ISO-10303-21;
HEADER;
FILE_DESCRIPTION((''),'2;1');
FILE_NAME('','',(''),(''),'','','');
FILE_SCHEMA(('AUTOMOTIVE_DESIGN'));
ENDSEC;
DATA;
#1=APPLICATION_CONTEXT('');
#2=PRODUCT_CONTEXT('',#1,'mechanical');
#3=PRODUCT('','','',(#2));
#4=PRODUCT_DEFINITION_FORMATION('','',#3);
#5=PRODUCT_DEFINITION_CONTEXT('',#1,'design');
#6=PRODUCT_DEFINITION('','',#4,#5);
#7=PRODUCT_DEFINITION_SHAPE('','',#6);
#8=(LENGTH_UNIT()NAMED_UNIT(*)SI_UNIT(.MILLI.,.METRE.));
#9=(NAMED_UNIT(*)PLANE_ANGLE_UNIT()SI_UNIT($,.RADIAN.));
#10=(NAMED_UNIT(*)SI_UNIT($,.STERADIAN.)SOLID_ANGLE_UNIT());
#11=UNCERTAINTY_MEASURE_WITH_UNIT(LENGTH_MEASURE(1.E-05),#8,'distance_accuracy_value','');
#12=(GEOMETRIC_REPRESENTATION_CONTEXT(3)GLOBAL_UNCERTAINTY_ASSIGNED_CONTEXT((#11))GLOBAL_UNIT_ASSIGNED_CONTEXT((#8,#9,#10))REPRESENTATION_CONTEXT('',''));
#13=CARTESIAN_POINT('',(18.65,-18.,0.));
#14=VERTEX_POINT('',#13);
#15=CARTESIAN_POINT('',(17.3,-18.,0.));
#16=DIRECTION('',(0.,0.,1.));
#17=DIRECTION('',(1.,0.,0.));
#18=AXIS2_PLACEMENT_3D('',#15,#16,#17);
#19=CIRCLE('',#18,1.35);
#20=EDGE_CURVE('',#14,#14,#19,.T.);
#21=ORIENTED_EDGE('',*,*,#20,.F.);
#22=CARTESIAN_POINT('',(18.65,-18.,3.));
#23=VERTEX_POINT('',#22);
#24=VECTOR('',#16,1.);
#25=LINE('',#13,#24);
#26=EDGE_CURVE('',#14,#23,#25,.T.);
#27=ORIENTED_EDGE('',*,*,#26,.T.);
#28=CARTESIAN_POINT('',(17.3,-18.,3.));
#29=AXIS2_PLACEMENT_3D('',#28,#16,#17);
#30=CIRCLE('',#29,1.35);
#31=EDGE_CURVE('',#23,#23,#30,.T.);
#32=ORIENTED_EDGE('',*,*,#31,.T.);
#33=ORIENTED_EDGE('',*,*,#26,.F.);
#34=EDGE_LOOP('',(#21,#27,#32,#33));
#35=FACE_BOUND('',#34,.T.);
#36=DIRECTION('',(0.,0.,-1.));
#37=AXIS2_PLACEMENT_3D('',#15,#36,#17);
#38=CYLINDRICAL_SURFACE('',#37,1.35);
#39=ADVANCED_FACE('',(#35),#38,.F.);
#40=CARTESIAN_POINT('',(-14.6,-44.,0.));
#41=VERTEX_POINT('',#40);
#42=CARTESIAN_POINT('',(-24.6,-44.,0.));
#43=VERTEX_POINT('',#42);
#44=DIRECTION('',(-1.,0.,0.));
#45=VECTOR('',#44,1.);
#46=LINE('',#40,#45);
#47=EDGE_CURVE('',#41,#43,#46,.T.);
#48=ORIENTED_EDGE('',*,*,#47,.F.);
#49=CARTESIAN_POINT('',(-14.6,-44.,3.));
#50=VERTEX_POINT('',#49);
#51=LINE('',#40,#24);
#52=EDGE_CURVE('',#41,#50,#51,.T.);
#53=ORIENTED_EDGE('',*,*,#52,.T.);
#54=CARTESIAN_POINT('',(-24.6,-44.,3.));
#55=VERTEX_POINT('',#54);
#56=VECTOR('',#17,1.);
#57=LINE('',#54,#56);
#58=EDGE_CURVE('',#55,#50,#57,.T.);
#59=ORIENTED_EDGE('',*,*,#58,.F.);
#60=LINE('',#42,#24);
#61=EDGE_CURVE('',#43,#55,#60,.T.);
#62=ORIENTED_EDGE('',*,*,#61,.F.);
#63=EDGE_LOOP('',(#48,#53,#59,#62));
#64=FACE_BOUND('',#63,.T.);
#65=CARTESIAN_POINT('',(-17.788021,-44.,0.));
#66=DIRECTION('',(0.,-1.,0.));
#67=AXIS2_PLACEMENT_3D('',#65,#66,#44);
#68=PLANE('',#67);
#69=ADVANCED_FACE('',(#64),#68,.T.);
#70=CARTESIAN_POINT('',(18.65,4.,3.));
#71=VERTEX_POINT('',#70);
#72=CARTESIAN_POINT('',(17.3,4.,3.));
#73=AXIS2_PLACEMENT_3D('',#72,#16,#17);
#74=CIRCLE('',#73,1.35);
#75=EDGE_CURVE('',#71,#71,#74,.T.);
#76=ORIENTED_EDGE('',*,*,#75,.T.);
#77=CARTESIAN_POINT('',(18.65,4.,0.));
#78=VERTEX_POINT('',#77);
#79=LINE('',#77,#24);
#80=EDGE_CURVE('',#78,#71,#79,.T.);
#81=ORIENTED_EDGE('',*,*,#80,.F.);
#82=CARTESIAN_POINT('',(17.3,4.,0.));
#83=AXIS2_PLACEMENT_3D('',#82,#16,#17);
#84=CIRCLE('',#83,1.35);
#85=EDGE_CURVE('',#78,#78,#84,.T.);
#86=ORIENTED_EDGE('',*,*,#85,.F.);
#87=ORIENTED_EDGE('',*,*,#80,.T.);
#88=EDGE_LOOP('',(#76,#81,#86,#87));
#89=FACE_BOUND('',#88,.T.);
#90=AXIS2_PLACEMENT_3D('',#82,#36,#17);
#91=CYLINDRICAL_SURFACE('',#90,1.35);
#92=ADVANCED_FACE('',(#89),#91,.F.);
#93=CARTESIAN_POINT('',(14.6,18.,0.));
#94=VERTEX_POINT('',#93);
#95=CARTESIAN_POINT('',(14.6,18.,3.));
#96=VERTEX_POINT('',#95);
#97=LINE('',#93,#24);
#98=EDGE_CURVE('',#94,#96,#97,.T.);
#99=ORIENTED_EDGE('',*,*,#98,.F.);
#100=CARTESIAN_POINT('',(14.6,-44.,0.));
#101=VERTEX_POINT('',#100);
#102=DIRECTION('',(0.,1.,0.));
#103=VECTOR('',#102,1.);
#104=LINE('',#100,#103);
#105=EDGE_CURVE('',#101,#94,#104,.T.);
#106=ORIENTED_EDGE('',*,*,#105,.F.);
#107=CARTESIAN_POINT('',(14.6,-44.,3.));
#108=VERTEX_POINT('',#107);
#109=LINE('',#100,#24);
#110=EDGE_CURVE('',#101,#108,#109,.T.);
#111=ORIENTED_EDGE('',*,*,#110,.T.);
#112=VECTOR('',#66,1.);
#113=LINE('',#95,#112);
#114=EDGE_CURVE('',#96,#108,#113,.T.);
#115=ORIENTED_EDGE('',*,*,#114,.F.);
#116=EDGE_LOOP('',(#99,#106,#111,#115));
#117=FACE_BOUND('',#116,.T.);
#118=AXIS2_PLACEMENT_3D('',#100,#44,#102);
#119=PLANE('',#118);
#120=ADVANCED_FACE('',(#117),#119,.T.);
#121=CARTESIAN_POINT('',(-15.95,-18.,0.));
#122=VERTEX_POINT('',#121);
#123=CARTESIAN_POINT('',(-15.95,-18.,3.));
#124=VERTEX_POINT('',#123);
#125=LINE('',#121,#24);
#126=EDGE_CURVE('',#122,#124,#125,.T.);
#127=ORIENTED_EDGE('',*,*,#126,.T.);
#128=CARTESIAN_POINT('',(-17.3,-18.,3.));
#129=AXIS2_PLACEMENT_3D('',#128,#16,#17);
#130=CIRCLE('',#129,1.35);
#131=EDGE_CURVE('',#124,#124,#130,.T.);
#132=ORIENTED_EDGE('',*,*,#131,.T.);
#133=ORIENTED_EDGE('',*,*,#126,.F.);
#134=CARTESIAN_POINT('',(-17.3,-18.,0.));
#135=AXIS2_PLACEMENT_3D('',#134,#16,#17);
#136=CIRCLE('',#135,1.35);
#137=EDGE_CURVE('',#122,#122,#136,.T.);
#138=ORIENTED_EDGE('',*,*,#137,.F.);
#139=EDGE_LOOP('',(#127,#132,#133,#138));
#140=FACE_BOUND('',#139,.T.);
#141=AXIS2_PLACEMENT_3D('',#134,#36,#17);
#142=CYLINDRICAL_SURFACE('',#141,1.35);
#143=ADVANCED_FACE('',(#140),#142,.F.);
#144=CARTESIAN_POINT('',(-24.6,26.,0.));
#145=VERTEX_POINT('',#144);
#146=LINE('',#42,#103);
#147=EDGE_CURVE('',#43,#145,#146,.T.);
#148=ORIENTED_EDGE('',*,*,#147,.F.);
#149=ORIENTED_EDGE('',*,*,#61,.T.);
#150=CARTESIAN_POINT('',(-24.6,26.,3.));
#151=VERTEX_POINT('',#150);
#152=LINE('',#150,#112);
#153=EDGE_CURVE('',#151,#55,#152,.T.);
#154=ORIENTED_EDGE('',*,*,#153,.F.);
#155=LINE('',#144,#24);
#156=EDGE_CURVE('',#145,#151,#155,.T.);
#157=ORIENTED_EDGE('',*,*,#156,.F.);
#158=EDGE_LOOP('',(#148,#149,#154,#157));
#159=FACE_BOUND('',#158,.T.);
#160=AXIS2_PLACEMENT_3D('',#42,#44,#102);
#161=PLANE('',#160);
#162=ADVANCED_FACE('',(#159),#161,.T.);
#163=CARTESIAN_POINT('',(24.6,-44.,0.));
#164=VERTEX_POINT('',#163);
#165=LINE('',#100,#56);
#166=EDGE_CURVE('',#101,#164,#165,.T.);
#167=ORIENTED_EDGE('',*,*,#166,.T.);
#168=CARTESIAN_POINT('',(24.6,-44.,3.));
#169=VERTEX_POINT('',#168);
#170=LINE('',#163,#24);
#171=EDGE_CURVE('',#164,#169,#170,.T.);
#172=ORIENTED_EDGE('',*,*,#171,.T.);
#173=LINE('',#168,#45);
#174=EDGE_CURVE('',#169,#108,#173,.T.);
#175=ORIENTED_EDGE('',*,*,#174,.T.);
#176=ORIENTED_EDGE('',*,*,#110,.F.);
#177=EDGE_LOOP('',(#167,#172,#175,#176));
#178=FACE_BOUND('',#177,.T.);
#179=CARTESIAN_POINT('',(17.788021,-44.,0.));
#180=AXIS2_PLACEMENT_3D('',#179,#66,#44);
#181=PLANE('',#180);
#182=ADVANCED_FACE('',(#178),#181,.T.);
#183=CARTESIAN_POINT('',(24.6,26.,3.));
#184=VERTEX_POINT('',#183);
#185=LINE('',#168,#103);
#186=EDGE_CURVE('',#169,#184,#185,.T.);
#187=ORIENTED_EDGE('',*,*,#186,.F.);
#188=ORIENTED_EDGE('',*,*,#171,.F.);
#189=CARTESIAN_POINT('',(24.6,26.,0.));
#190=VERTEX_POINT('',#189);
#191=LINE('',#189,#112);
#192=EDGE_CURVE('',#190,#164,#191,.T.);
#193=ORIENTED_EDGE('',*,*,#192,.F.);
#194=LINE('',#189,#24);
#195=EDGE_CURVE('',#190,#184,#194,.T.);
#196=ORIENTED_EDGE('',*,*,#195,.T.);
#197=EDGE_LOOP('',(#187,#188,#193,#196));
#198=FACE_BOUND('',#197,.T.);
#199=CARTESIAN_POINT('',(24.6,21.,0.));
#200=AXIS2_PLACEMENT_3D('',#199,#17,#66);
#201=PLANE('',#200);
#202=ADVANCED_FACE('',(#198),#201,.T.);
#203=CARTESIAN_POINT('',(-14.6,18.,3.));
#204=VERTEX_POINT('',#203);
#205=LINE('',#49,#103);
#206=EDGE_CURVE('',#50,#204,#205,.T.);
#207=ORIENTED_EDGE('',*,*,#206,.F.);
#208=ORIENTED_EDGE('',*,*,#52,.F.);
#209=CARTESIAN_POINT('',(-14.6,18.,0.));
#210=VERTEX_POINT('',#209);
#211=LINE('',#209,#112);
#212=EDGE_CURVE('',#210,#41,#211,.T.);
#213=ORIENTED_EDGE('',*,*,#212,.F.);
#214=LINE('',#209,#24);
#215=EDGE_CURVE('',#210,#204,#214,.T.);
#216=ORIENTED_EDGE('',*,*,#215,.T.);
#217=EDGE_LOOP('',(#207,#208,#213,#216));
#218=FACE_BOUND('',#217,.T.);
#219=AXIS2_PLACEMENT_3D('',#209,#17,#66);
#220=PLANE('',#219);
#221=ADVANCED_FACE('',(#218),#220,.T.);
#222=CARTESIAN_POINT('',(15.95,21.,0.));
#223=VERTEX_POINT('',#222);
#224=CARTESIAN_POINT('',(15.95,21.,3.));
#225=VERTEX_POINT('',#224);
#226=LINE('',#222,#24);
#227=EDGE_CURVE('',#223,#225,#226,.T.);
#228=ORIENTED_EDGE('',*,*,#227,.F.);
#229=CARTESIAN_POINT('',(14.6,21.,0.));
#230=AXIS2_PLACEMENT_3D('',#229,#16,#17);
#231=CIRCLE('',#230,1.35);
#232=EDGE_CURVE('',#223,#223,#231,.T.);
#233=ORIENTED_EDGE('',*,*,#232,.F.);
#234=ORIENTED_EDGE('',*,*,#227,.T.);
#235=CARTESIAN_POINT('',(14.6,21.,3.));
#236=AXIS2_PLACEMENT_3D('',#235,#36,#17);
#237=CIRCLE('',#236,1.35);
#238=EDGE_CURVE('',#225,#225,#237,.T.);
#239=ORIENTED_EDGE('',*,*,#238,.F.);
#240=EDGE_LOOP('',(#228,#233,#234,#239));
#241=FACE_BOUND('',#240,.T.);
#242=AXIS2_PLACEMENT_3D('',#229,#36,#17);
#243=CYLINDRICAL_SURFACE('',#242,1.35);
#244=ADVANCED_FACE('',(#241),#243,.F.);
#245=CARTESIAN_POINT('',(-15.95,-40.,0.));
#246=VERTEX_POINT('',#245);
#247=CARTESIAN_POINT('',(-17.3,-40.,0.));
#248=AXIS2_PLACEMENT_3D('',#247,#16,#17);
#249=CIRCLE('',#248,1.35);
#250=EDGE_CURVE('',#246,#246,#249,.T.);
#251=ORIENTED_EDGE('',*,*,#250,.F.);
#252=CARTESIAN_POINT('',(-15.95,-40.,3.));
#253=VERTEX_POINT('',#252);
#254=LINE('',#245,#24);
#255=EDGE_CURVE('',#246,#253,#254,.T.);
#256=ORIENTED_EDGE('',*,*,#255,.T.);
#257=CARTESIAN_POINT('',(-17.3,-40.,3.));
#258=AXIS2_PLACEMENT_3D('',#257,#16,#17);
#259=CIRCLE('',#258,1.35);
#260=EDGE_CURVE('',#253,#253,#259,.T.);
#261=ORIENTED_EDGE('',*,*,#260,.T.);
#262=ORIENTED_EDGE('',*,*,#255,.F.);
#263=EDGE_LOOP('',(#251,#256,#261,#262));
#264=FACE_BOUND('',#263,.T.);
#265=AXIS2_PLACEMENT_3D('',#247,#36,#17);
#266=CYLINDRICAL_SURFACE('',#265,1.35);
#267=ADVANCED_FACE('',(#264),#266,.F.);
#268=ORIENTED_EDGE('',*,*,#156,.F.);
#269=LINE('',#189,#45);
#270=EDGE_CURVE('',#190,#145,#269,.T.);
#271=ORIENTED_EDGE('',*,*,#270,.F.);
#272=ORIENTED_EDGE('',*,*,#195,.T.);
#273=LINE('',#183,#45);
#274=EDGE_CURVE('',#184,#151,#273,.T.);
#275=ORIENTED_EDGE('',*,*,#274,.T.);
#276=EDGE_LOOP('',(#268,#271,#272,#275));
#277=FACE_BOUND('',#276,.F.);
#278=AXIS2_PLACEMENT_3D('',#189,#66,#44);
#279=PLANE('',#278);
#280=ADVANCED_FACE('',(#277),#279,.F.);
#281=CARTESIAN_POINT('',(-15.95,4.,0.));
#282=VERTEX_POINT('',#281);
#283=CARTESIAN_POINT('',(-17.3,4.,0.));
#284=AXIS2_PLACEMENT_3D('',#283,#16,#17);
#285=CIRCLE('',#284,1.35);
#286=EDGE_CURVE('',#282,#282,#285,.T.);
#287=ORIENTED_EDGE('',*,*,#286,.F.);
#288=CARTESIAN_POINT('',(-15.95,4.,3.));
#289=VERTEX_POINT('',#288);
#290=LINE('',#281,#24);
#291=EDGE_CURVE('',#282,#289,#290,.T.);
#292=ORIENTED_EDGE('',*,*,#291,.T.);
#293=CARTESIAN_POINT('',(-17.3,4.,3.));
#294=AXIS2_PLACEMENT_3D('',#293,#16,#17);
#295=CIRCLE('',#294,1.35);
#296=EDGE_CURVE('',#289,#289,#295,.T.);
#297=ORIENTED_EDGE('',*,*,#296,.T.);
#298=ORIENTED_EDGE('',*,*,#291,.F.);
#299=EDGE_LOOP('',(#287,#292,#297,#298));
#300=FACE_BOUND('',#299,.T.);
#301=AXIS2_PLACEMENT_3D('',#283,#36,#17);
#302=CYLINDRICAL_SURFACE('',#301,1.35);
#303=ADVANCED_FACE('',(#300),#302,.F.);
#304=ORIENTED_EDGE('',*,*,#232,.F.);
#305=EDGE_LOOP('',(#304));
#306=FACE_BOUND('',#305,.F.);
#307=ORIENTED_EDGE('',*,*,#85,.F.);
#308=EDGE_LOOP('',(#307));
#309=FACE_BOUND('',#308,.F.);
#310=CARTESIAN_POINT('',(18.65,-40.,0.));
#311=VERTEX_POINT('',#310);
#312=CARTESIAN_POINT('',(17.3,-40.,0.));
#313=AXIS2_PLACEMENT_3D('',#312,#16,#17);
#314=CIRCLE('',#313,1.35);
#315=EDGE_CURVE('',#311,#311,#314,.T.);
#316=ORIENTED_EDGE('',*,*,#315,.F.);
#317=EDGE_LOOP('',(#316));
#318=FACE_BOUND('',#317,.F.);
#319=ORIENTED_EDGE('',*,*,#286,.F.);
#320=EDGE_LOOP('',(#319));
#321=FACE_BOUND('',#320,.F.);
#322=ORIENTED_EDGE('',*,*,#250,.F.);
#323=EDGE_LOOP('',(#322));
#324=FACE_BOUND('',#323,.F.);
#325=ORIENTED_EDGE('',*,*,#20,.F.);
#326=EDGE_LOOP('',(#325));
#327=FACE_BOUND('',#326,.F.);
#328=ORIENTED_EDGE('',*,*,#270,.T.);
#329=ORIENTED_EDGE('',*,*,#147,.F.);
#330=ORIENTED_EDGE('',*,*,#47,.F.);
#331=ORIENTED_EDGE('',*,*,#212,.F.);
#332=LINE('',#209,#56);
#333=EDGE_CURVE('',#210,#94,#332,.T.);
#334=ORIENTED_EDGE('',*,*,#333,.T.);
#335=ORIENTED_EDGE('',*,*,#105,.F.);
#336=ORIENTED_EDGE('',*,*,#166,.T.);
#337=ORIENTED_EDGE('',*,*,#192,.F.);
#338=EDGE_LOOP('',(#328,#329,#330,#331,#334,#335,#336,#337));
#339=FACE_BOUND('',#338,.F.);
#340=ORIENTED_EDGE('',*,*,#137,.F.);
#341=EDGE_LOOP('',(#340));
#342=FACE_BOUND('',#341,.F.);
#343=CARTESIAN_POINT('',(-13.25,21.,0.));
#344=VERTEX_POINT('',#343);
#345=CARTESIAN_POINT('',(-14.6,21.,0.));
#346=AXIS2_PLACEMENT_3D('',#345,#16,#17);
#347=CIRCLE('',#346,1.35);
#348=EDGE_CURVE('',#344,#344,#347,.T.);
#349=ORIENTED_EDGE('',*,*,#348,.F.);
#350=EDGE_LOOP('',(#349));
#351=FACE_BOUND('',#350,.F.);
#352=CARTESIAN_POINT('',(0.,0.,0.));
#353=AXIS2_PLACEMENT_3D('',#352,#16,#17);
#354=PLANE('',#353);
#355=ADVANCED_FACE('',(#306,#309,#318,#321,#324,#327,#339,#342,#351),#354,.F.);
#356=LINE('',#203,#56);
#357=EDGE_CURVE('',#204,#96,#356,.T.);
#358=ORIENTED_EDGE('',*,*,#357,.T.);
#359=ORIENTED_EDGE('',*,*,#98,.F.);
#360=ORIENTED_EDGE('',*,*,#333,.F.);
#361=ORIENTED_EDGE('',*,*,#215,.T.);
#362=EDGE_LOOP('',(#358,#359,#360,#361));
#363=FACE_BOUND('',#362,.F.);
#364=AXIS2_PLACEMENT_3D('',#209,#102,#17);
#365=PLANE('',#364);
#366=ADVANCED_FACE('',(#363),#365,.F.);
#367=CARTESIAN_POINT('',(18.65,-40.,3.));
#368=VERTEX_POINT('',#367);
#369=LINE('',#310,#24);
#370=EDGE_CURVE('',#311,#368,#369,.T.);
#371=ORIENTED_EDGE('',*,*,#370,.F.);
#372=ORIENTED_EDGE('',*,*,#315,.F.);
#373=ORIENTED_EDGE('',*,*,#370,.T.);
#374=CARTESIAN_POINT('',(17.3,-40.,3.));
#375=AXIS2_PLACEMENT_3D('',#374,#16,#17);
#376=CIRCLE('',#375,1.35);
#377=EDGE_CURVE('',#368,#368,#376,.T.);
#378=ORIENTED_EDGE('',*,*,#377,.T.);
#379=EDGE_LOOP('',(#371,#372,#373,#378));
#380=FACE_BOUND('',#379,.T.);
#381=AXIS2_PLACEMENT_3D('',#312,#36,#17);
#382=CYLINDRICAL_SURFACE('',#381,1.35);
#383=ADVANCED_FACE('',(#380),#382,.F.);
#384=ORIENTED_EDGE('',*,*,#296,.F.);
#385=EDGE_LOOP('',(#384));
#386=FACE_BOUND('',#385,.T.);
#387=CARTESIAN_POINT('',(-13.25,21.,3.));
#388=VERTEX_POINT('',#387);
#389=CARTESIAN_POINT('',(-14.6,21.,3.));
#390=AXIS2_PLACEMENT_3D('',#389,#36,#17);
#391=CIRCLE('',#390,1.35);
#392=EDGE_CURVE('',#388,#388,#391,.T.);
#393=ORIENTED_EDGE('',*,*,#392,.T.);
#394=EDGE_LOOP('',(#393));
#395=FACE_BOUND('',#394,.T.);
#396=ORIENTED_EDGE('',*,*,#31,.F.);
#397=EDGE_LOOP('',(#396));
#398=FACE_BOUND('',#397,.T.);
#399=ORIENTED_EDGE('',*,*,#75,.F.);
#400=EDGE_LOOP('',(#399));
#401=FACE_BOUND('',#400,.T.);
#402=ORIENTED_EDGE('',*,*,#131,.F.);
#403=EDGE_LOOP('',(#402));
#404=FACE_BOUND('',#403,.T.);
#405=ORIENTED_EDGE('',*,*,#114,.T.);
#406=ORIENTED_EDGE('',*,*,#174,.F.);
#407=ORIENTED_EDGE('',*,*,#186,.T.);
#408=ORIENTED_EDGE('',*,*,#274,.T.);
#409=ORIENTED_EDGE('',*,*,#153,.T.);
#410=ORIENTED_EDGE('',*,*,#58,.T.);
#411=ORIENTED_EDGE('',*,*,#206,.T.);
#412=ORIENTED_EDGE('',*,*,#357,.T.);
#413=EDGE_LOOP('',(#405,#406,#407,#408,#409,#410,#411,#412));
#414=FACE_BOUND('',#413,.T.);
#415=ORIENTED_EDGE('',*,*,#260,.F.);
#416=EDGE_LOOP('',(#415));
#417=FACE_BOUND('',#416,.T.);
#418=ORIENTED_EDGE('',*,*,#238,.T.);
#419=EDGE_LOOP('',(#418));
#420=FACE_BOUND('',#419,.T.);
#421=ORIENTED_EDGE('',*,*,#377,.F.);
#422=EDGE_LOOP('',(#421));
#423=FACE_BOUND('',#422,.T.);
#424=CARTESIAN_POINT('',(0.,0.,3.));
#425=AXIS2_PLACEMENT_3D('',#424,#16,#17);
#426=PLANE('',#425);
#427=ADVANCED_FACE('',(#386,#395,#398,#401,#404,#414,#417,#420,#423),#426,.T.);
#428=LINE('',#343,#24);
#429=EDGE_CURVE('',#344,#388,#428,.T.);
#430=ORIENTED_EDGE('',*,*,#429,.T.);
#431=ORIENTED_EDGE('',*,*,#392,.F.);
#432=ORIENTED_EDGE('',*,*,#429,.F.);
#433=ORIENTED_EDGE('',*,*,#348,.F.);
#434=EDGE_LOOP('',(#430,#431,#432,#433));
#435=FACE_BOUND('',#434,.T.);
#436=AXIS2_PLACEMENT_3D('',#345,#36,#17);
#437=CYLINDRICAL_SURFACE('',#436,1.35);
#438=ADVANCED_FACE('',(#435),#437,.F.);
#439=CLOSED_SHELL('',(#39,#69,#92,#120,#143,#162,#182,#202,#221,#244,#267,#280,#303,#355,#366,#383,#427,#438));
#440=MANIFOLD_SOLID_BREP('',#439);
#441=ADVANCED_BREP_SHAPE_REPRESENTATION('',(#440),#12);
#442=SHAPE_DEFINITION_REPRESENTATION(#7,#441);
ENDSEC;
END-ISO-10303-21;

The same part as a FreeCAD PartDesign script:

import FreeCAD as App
import Part
import Sketcher
from FreeCAD import Vector

doc = App.newDocument("Part")
body = doc.addObject("PartDesign::Body", "Body")

# Sketch on XY plane
sketch1 = body.newObject("Sketcher::SketchObject", "Sketch")
sketch1.AttachmentSupport = (doc.getObject("XY_Plane"), [""])
sketch1.MapMode = "FlatFace"
sketch1.addGeometry([
    Part.LineSegment(Vector(24.6, -44, 0), Vector(24.6, 26, 0)),  # 0
    Part.LineSegment(Vector(24.6, 26, 0), Vector(-24.6, 26, 0)),  # 1
    Part.LineSegment(Vector(-24.6, 26, 0), Vector(-24.6, -44, 0)),  # 2
    Part.LineSegment(Vector(-24.6, -44, 0), Vector(-14.6, -44, 0)),  # 3
    Part.LineSegment(Vector(-14.6, -44, 0), Vector(-14.6, 18, 0)),  # 4
    Part.LineSegment(Vector(-14.6, 18, 0), Vector(14.6, 18, 0)),  # 5
    Part.LineSegment(Vector(14.6, 18, 0), Vector(14.6, -44, 0)),  # 6
    Part.LineSegment(Vector(14.6, -44, 0), Vector(24.6, -44, 0)),  # 7
    Part.Circle(Vector(17.3, -40, 0), Vector(0, 0, 1), 1.4),  # 8
    Part.Circle(Vector(17.3, -18, 0), Vector(0, 0, 1), 1.4),  # 9
    Part.Circle(Vector(17.3, 4, 0), Vector(0, 0, 1), 1.4),  # 10
    Part.Circle(Vector(14.6, 21, 0), Vector(0, 0, 1), 1.4),  # 11
    Part.Circle(Vector(-14.6, 21, 0), Vector(0, 0, 1), 1.4),  # 12
    Part.Circle(Vector(-17.3, -40, 0), Vector(0, 0, 1), 1.4),  # 13
    Part.Circle(Vector(-17.3, -18, 0), Vector(0, 0, 1), 1.4),  # 14
    Part.Circle(Vector(-17.3, 4, 0), Vector(0, 0, 1), 1.4),  # 15
], False)
sketch1.addConstraint([
    Sketcher.Constraint("Coincident", 0, 2, 1, 1),
    Sketcher.Constraint("Coincident", 1, 2, 2, 1),
    Sketcher.Constraint("Coincident", 2, 2, 3, 1),
    Sketcher.Constraint("Coincident", 3, 2, 4, 1),
    Sketcher.Constraint("Coincident", 4, 2, 5, 1),
    Sketcher.Constraint("Coincident", 5, 2, 6, 1),
    Sketcher.Constraint("Coincident", 6, 2, 7, 1),
    Sketcher.Constraint("Coincident", 7, 2, 0, 1),
    Sketcher.Constraint("Vertical", 0),
    Sketcher.Constraint("Horizontal", 1),
    Sketcher.Constraint("Vertical", 2),
    Sketcher.Constraint("Horizontal", 3),
    Sketcher.Constraint("Vertical", 4),
    Sketcher.Constraint("Horizontal", 5),
    Sketcher.Constraint("Vertical", 6),
    Sketcher.Constraint("Horizontal", 7),
    Sketcher.Constraint("Equal", 8, 9),
    Sketcher.Constraint("Equal", 9, 10),
    Sketcher.Constraint("Equal", 10, 11),
    Sketcher.Constraint("Equal", 11, 12),
    Sketcher.Constraint("Equal", 12, 13),
    Sketcher.Constraint("Equal", 13, 14),
    Sketcher.Constraint("Equal", 14, 15),
    Sketcher.Constraint("Symmetric", 11, 3, 12, 3, -2),
    Sketcher.Constraint("Symmetric", 8, 3, 13, 3, -2),
    Sketcher.Constraint("Symmetric", 9, 3, 14, 3, -2),
    Sketcher.Constraint("Symmetric", 10, 3, 15, 3, -2),
    Sketcher.Constraint("Symmetric", 3, 2, 6, 2, -2),
    Sketcher.Constraint("Vertical", 8, 3, 9, 3),
    Sketcher.Constraint("Vertical", 9, 3, 10, 3),
    Sketcher.Constraint("Vertical", 12, 3, 3, 2),
    Sketcher.Constraint("Equal", 3, 7),
    Sketcher.Constraint("Diameter", 8, 2.7),
    Sketcher.Constraint("DistanceX", 3, 1, 3, 2, 10.0),
    Sketcher.Constraint("DistanceY", 4, 1, 4, 2, 62.0),
    Sketcher.Constraint("DistanceY", 11, 3, 0, 2, 5.0),
    Sketcher.Constraint("DistanceY", 4, 2, 12, 3, 3.0),
    Sketcher.Constraint("DistanceX", 11, 3, 10, 3, 2.7),
    Sketcher.Constraint("DistanceX", 1, 2, 1, 1, 49.2),
    Sketcher.Constraint("DistanceY", 8, 3, -1, 1, 40.0),
    Sketcher.Constraint("DistanceY", 9, 3, -1, 1, 18.0),
    Sketcher.Constraint("DistanceY", -1, 1, 10, 3, 4.0),
    Sketcher.Constraint("DistanceY", -1, 1, 11, 3, 21.0),
])
pad1 = body.newObject("PartDesign::Pad", "Pad")
pad1.Profile = sketch1
pad1.Length = 3

doc.recompute()
